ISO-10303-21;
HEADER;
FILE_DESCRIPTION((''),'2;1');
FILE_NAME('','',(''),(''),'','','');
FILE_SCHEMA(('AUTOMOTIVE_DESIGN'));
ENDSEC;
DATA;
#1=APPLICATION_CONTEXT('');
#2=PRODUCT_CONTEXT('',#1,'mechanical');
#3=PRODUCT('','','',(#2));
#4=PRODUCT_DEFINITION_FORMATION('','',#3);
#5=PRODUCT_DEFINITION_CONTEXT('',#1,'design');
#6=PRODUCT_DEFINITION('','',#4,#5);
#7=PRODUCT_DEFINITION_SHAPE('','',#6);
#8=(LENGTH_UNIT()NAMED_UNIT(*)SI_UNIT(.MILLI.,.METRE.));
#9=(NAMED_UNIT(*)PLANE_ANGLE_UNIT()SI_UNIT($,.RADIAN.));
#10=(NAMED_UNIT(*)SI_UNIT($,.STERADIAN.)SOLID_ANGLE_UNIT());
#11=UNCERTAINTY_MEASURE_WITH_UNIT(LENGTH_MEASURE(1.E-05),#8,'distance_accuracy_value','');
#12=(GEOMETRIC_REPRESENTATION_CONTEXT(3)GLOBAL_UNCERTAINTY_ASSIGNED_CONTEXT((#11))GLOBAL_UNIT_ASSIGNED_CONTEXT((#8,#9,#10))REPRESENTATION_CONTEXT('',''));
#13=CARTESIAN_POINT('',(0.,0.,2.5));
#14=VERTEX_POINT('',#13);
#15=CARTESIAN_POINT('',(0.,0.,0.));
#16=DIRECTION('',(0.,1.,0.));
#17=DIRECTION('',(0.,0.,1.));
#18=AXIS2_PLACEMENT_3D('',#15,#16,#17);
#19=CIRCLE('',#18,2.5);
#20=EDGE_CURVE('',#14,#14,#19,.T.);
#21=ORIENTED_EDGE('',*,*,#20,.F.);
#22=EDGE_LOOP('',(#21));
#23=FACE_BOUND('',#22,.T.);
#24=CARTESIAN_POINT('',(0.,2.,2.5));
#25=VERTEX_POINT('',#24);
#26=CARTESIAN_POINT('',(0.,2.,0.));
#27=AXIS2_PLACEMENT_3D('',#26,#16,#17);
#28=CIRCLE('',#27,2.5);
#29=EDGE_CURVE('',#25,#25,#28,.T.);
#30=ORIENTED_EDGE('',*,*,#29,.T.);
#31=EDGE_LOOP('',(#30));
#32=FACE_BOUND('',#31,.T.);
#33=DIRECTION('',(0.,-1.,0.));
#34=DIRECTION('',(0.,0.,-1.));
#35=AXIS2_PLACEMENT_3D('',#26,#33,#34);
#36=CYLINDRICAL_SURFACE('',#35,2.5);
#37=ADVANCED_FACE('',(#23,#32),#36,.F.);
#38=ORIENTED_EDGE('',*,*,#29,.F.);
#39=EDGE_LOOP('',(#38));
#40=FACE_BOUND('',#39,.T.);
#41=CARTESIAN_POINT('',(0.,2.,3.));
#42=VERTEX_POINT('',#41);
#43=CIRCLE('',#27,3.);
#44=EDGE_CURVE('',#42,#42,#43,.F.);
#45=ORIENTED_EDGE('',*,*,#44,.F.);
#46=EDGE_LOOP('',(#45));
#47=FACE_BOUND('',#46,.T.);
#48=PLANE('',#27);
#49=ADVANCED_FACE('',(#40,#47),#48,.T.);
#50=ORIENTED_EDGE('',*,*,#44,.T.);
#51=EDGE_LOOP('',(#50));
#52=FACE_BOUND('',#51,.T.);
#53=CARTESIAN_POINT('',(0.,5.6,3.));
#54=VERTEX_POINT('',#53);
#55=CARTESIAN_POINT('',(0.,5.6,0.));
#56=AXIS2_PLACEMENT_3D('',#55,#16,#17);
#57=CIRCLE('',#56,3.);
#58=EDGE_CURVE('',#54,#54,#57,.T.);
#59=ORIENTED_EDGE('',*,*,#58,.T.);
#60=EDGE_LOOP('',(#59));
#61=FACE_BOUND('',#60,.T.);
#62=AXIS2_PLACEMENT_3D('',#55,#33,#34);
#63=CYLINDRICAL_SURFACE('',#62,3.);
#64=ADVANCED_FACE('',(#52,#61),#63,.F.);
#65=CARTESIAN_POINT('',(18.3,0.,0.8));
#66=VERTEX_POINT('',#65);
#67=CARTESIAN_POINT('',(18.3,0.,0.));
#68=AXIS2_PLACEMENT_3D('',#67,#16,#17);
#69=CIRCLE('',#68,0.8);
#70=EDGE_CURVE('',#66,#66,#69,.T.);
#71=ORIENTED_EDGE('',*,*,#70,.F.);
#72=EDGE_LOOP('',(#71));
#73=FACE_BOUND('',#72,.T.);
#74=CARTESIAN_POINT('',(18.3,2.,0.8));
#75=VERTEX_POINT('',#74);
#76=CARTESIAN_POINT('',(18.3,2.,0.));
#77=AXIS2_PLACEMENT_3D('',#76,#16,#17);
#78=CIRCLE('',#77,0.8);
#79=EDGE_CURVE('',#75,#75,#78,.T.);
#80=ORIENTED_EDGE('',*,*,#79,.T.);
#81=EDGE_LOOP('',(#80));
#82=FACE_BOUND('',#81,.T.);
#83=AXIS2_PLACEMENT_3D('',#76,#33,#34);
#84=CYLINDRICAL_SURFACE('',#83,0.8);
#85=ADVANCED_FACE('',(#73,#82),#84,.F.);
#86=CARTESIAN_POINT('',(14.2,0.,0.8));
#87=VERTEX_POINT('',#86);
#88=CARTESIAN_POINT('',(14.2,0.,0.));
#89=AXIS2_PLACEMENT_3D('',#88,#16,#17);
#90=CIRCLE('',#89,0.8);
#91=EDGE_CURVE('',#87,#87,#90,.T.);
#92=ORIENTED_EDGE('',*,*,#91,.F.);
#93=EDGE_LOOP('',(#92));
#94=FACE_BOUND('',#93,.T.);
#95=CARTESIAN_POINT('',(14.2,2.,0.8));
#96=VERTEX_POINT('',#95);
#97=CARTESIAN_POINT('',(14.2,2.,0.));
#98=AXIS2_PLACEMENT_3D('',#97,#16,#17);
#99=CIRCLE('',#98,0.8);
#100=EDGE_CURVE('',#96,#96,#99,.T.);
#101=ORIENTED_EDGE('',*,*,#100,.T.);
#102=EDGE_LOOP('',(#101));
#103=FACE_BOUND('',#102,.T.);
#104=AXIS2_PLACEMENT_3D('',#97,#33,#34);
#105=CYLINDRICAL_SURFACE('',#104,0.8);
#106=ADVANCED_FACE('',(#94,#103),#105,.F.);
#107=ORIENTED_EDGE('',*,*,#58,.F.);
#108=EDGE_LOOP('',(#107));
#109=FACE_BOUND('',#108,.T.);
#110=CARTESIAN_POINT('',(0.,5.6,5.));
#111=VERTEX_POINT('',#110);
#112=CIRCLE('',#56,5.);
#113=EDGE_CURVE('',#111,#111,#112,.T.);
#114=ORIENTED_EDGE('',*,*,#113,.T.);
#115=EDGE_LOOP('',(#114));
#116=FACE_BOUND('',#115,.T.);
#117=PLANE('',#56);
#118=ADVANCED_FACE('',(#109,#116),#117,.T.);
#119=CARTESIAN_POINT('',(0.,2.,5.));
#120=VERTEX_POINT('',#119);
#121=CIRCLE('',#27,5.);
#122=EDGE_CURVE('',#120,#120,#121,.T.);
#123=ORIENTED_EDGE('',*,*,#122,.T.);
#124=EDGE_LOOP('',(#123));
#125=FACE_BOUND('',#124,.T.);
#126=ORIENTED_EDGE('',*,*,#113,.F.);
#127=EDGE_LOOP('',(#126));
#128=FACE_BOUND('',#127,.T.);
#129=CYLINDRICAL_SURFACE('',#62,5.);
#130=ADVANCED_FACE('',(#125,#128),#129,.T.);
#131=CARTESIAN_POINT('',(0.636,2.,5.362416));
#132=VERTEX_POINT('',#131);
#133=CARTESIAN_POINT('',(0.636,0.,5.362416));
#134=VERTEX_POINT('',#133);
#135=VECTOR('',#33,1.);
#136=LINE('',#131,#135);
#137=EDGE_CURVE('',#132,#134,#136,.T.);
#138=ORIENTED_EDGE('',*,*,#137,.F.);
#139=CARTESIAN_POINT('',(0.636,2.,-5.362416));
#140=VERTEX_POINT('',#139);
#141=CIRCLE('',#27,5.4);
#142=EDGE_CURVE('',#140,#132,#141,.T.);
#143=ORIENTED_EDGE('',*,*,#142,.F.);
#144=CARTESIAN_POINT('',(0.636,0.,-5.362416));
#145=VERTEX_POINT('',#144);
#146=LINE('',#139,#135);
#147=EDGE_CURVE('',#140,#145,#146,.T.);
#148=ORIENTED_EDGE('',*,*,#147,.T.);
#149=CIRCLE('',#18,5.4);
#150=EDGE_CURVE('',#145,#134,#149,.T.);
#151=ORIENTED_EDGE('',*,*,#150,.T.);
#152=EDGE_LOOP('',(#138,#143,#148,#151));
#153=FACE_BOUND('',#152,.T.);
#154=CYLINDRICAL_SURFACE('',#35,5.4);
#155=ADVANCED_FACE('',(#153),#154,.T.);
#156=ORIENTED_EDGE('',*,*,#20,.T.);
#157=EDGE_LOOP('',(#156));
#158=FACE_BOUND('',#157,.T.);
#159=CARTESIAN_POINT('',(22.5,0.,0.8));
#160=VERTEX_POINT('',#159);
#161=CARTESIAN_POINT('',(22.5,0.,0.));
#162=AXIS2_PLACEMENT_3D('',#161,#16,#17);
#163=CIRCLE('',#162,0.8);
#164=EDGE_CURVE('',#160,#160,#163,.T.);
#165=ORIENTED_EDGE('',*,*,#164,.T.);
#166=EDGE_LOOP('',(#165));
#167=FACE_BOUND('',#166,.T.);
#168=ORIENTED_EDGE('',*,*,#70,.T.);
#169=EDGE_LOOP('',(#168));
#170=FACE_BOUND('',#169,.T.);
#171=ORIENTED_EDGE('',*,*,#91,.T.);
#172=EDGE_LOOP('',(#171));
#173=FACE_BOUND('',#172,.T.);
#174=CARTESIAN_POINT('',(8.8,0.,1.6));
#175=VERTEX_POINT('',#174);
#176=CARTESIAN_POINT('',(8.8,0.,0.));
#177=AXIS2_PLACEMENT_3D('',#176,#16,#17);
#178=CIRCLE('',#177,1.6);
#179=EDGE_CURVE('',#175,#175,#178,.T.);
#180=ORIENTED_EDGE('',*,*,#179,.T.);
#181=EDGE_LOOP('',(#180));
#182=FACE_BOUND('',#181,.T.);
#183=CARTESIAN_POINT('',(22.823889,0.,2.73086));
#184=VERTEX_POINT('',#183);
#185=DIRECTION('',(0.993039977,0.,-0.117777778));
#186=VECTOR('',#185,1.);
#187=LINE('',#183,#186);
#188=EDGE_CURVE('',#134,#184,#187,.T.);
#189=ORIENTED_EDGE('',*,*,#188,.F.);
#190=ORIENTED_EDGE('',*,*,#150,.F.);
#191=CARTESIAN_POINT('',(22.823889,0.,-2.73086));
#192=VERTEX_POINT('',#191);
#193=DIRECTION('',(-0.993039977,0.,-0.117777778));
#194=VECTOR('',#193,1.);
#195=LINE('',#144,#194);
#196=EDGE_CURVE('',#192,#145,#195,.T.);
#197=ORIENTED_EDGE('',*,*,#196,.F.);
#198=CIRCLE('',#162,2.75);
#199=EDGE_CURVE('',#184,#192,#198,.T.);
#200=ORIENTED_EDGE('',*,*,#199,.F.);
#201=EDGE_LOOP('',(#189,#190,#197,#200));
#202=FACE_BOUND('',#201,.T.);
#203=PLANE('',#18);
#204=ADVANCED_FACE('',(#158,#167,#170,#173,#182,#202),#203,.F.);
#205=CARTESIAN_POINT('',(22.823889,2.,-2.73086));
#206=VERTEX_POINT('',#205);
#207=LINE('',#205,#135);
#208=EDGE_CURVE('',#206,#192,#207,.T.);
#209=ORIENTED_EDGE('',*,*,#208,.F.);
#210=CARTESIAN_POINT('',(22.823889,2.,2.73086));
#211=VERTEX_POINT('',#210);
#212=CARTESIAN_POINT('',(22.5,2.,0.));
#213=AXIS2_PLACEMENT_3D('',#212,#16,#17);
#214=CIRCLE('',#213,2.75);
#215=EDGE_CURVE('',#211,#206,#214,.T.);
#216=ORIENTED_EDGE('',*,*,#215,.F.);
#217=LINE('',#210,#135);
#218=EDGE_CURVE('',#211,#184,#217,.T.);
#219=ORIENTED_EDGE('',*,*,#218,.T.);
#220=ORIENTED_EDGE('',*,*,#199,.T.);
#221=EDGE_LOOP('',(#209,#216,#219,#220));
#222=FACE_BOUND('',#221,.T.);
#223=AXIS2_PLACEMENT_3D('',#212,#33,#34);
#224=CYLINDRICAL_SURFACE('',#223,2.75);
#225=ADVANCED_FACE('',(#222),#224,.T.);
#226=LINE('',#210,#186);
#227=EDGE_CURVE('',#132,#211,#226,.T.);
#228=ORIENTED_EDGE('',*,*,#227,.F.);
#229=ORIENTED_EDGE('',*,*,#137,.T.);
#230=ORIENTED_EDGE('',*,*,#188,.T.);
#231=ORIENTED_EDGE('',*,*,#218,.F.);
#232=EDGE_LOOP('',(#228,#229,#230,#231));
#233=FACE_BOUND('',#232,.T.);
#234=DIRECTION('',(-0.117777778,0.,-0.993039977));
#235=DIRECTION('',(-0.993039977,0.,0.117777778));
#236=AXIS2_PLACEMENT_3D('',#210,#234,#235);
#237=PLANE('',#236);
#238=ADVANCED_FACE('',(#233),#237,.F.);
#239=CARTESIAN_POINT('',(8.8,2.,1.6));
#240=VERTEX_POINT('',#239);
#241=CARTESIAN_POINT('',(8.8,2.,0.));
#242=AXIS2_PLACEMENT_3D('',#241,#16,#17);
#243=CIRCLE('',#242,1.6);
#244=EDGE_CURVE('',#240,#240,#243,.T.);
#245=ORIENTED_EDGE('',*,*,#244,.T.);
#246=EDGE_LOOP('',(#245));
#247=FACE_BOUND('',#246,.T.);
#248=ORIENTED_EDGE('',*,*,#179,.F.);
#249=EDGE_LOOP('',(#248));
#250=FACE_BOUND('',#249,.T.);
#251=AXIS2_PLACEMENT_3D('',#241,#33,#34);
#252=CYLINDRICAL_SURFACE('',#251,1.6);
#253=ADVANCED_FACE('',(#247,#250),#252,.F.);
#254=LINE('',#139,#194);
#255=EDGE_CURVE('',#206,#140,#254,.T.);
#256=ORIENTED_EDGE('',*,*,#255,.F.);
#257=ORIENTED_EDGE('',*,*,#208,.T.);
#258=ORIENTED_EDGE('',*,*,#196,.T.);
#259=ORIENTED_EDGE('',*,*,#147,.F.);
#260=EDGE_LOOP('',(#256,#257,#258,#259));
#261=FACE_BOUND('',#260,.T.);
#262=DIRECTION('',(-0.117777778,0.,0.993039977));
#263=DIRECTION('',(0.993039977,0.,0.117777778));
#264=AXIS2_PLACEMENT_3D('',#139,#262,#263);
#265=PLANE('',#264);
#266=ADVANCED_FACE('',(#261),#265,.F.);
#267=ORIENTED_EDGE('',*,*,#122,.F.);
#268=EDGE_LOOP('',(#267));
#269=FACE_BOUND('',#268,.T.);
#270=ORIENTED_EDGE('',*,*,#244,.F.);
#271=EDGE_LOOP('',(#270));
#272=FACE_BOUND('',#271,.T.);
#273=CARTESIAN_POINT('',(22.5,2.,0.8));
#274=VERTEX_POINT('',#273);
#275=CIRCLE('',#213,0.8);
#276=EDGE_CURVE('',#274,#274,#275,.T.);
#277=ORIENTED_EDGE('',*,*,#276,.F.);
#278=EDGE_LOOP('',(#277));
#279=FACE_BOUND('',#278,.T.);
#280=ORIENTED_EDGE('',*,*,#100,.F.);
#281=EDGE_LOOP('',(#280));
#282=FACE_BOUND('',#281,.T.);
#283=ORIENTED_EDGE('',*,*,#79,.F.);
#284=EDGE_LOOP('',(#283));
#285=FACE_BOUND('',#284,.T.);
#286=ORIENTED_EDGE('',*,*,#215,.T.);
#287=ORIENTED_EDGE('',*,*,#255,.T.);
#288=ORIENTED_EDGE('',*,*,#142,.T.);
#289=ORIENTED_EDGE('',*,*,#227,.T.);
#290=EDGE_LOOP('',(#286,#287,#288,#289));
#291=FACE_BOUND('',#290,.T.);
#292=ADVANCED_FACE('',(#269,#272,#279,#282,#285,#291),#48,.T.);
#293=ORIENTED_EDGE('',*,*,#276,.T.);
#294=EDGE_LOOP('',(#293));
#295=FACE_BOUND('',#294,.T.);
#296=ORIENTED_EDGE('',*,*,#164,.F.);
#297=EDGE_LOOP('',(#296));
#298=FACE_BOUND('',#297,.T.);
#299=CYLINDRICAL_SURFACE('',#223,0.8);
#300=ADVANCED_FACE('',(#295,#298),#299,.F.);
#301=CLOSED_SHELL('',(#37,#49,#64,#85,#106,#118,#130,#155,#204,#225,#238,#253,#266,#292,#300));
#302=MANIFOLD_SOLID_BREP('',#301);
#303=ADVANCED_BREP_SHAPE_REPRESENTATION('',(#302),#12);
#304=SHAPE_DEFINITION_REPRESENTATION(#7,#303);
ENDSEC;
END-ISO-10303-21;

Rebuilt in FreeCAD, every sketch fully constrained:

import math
import FreeCAD as App
import Part
import Sketcher
Q = App.Units.Quantity

doc = App.newDocument("Part")
params = doc.addObject("Spreadsheet::Sheet", "Params")
for row, (alias, value) in enumerate([
    ("sketch1_diameter", "5 mm"),
    ("sketch1_diameter2", "1.6 mm"),
    ("sketch1_diameter3", "3.2 mm"),
    ("sketch1_radius", "5.4 mm"),
    ("sketch1_radius2", "2.75 mm"),
    ("pad1_length", "2 mm"),
    ("sketch2_diameter", "10 mm"),
    ("sketch2_diameter2", "6 mm"),
    ("pad2_length", "3.6 mm"),
], start=1):
    params.set(f"A{row}", alias)
    params.set(f"B{row}", "=" + value)
    params.setAlias(f"B{row}", alias)

body = doc.addObject("PartDesign::Body", "Body")

# Sketch on XZ plane
sketch1 = doc.addObject("Sketcher::SketchObject", "Sketch")
body.addObject(sketch1)
sketch1.AttachmentSupport = (doc.XZ_Plane, [""])
sketch1.MapMode = "FlatFace"
sketch1.addGeometry(Part.LineSegment(App.Vector(22.823889, -2.73086, 0), App.Vector(0.636, -5.362416, 0)), False)
sketch1.addGeometry(Part.ArcOfCircle(Part.Circle(App.Vector(0, 0, 0), App.Vector(0, 0, 1), 5.4), math.radians(83.236131), math.radians(276.763869)), False)
sketch1.addGeometry(Part.LineSegment(App.Vector(0.636, 5.362416, 0), App.Vector(22.823889, 2.73086, 0)), False)
sketch1.addGeometry(Part.ArcOfCircle(Part.Circle(App.Vector(22.5, 0, 0), App.Vector(0, 0, 1), 2.75), math.radians(-83.236131), math.radians(83.236131)), False)
sketch1.addGeometry(Part.Circle(App.Vector(22.5, 0, 0), App.Vector(0, 0, 1), 0.8), False)
sketch1.addGeometry(Part.Circle(App.Vector(18.3, 0, 0), App.Vector(0, 0, 1), 0.8), False)
sketch1.addGeometry(Part.Circle(App.Vector(14.2, 0, 0), App.Vector(0, 0, 1), 0.8), False)
sketch1.addGeometry(Part.Circle(App.Vector(8.8, 0, 0), App.Vector(0, 0, 1), 1.6), False)
sketch1.addGeometry(Part.Circle(App.Vector(0, 0, 0), App.Vector(0, 0, 1), 2.5), False)
sketch1.addConstraint(Sketcher.Constraint("Tangent", 0, 2, 1, 2))
sketch1.addConstraint(Sketcher.Constraint("Tangent", 1, 1, 2, 1))
sketch1.addConstraint(Sketcher.Constraint("Tangent", 2, 2, 3, 2))
sketch1.addConstraint(Sketcher.Constraint("Tangent", 3, 1, 0, 1))
sketch1.addConstraint(Sketcher.Constraint("Coincident", 1, 3, -1, 1))
sketch1.addConstraint(Sketcher.Constraint("Coincident", 8, 3, -1, 1))
sketch1.addConstraint(Sketcher.Constraint("Coincident", 4, 3, 3, 3))
sketch1.addConstraint(Sketcher.Constraint("Equal", 4, 5))
sketch1.addConstraint(Sketcher.Constraint("Equal", 5, 6))
sketch1.addConstraint(Sketcher.Constraint("PointOnObject", 3, 3, -1))
sketch1.addConstraint(Sketcher.Constraint("PointOnObject", 5, 3, -1))
sketch1.addConstraint(Sketcher.Constraint("PointOnObject", 6, 3, -1))
sketch1.addConstraint(Sketcher.Constraint("PointOnObject", 7, 3, -1))
sketch1.addConstraint(Sketcher.Constraint("Diameter", 8, Q("5 mm")))
sketch1.addConstraint(Sketcher.Constraint("Diameter", 4, Q("1.6 mm")))
sketch1.addConstraint(Sketcher.Constraint("Diameter", 7, Q("3.2 mm")))
sketch1.addConstraint(Sketcher.Constraint("Radius", 1, Q("5.4 mm")))
sketch1.addConstraint(Sketcher.Constraint("Radius", 3, Q("2.75 mm")))
sketch1.addConstraint(Sketcher.Constraint("DistanceX", -1, 1, 3, 3, Q("22.5 mm")))
sketch1.addConstraint(Sketcher.Constraint("DistanceX", -1, 1, 5, 3, Q("18.3 mm")))
sketch1.addConstraint(Sketcher.Constraint("DistanceX", -1, 1, 6, 3, Q("14.2 mm")))
sketch1.addConstraint(Sketcher.Constraint("DistanceX", -1, 1, 7, 3, Q("8.8 mm")))
sketch1.setExpression("Constraints[13]", "Params.sketch1_diameter")
sketch1.setExpression("Constraints[14]", "Params.sketch1_diameter2")
sketch1.setExpression("Constraints[15]", "Params.sketch1_diameter3")
sketch1.setExpression("Constraints[16]", "Params.sketch1_radius")
sketch1.setExpression("Constraints[17]", "Params.sketch1_radius2")
pad1 = doc.addObject("PartDesign::Pad", "Pad")
body.addObject(pad1)
pad1.Profile = sketch1
pad1.setExpression("Length", "Params.pad1_length")
pad1.Reversed = True

# Sketch on XZ plane
sketch2 = doc.addObject("Sketcher::SketchObject", "Sketch001")
body.addObject(sketch2)
sketch2.AttachmentSupport = (doc.XZ_Plane, [""])
sketch2.MapMode = "FlatFace"
sketch2.AttachmentOffset = App.Placement(App.Vector(0, 0, -2), App.Rotation())
sketch2.addGeometry(Part.Circle(App.Vector(0, 0, 0), App.Vector(0, 0, 1), 5), False)
sketch2.addGeometry(Part.Circle(App.Vector(0, 0, 0), App.Vector(0, 0, 1), 3), False)
sketch2.addConstraint(Sketcher.Constraint("Coincident", 0, 3, -1, 1))
sketch2.addConstraint(Sketcher.Constraint("Coincident", 1, 3, -1, 1))
sketch2.addConstraint(Sketcher.Constraint("Diameter", 0, Q("10 mm")))
sketch2.addConstraint(Sketcher.Constraint("Diameter", 1, Q("6 mm")))
sketch2.setExpression("Constraints[2]", "Params.sketch2_diameter")
sketch2.setExpression("Constraints[3]", "Params.sketch2_diameter2")
pad2 = doc.addObject("PartDesign::Pad", "Pad001")
body.addObject(pad2)
pad2.Profile = sketch2
pad2.setExpression("Length", "Params.pad2_length")
pad2.Reversed = True

doc.recompute()
